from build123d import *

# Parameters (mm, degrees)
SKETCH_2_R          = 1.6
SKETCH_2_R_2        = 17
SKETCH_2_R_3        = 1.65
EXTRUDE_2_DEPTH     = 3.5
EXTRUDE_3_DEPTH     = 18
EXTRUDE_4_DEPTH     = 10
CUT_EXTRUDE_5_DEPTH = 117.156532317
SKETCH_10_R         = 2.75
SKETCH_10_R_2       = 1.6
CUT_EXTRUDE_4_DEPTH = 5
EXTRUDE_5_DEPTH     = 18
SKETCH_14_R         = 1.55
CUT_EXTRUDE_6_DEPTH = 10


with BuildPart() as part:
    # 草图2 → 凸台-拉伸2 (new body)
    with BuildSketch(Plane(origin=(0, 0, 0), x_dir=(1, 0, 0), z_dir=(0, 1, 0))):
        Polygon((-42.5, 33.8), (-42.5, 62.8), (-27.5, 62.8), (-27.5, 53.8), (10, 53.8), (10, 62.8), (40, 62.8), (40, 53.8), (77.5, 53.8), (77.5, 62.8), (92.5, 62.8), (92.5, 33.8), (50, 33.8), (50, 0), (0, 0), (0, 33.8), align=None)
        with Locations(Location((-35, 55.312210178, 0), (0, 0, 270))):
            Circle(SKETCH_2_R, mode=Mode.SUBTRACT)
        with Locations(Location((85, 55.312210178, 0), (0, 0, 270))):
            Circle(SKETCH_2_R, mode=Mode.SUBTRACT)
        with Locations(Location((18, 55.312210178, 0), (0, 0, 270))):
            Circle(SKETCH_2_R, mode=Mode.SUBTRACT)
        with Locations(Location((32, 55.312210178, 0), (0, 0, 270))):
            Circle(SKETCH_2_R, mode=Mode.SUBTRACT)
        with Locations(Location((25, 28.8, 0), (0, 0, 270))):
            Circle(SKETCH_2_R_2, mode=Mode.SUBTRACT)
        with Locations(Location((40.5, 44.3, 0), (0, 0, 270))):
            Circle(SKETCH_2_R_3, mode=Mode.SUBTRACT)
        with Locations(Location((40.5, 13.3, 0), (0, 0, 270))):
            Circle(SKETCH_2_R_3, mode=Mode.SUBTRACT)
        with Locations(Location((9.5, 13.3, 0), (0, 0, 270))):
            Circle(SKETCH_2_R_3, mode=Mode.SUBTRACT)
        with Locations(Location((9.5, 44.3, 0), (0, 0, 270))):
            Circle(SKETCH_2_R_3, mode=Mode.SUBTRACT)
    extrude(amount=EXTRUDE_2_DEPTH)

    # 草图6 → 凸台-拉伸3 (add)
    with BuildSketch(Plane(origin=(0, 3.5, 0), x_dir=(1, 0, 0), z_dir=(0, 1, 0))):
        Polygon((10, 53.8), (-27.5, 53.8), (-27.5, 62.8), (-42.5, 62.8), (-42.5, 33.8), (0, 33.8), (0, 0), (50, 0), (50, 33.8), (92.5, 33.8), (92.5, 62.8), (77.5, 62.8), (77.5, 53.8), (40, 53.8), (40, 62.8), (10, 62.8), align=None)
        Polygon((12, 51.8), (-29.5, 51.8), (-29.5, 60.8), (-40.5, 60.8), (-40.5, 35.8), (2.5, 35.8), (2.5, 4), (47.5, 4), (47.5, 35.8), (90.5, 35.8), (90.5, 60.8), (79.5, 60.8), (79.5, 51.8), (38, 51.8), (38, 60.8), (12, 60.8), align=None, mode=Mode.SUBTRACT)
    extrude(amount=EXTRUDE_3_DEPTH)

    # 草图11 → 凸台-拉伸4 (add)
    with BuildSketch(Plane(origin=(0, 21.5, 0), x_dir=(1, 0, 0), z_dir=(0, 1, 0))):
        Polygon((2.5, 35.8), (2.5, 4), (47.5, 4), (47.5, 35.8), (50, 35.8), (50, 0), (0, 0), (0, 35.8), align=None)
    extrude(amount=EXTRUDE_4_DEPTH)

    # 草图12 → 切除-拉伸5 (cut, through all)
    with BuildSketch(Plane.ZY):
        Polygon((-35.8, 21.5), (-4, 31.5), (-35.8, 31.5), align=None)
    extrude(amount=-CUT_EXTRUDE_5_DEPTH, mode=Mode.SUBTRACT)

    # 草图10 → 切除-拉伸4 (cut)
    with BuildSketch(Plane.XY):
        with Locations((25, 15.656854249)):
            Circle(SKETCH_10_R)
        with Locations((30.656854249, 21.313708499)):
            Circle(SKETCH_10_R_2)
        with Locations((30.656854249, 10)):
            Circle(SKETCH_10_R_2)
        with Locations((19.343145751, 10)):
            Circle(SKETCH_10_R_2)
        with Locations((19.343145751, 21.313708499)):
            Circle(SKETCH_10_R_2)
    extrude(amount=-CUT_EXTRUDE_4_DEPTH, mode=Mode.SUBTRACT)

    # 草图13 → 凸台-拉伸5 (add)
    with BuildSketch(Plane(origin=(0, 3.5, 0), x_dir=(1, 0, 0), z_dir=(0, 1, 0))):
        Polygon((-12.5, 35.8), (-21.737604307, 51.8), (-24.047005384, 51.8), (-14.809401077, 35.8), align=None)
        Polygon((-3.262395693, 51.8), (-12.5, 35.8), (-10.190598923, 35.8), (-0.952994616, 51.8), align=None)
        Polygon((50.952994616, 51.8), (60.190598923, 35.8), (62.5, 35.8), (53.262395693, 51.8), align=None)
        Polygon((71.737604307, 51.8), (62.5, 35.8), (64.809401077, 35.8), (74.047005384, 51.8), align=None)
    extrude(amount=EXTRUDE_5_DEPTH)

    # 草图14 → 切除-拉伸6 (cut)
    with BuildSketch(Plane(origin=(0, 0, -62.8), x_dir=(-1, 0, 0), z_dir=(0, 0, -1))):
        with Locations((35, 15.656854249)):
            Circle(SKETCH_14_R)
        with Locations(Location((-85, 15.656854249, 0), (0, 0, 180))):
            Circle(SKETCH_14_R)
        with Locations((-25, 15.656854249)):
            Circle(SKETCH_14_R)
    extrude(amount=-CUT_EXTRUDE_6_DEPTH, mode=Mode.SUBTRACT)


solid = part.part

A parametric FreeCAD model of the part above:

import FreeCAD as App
import Part
import Sketcher
Q = App.Units.Quantity


def add_polygon(sketch, points):
    """Adds a closed chain of lines whose ends are joined by coincident constraints."""
    first, n = sketch.GeometryCount, len(points)
    for a, b in zip(points, points[1:] + points[:1]):
        sketch.addGeometry(Part.LineSegment(App.Vector(*a, 0), App.Vector(*b, 0)), False)
    for i in range(n):
        sketch.addConstraint(Sketcher.Constraint("Coincident", first + i, 2, first + (i + 1) % n, 1))

doc = App.newDocument("Part")
body = doc.addObject("PartDesign::Body", "Body")

# Sketch on XZ plane
sketch1 = doc.addObject("Sketcher::SketchObject", "Sketch")
body.addObject(sketch1)
sketch1.AttachmentSupport = (doc.XZ_Plane, [""])
sketch1.MapMode = "FlatFace"
add_polygon(sketch1, [(-42.5, -62.8), (-42.5, -33.8), (0, -33.8), (0, 0), (50, 0), (50, -33.8), (92.5, -33.8), (92.5, -62.8), (77.5, -62.8), (77.5, -53.8), (40, -53.8), (40, -62.8), (10, -62.8), (10, -53.8), (-27.5, -53.8), (-27.5, -62.8)])  # lines 0-15
sketch1.addGeometry(Part.Circle(App.Vector(40.5, -13.3, 0), App.Vector(0, 0, 1), 1.6), False)  # 16
sketch1.addGeometry(Part.Circle(App.Vector(9.5, -13.3, 0), App.Vector(0, 0, 1), 1.6), False)  # 17
sketch1.addGeometry(Part.Circle(App.Vector(25, -28.8, 0), App.Vector(0, 0, 1), 17), False)  # 18
sketch1.addGeometry(Part.Circle(App.Vector(40.5, -44.3, 0), App.Vector(0, 0, 1), 1.6), False)  # 19
sketch1.addGeometry(Part.Circle(App.Vector(85, -55.3, 0), App.Vector(0, 0, 1), 1.6), False)  # 20
sketch1.addGeometry(Part.Circle(App.Vector(32, -55.3, 0), App.Vector(0, 0, 1), 1.6), False)  # 21
sketch1.addGeometry(Part.Circle(App.Vector(9.5, -44.3, 0), App.Vector(0, 0, 1), 1.6), False)  # 22
sketch1.addGeometry(Part.Circle(App.Vector(18, -55.3, 0), App.Vector(0, 0, 1), 1.6), False)  # 23
sketch1.addGeometry(Part.Circle(App.Vector(-35, -55.3, 0), App.Vector(0, 0, 1), 1.6), False)  # 24
sketch1.addConstraint(Sketcher.Constraint("Vertical", 0))
sketch1.addConstraint(Sketcher.Constraint("Horizontal", 1))
sketch1.addConstraint(Sketcher.Constraint("Vertical", 2))
sketch1.addConstraint(Sketcher.Constraint("Horizontal", 3))
sketch1.addConstraint(Sketcher.Constraint("Vertical", 4))
sketch1.addConstraint(Sketcher.Constraint("Horizontal", 5))
sketch1.addConstraint(Sketcher.Constraint("Vertical", 6))
sketch1.addConstraint(Sketcher.Constraint("Horizontal", 7))
sketch1.addConstraint(Sketcher.Constraint("Vertical", 8))
sketch1.addConstraint(Sketcher.Constraint("Horizontal", 9))
sketch1.addConstraint(Sketcher.Constraint("Vertical", 10))
sketch1.addConstraint(Sketcher.Constraint("Horizontal", 11))
sketch1.addConstraint(Sketcher.Constraint("Vertical", 12))
sketch1.addConstraint(Sketcher.Constraint("Horizontal", 13))
sketch1.addConstraint(Sketcher.Constraint("Vertical", 14))
sketch1.addConstraint(Sketcher.Constraint("Horizontal", 15))
sketch1.addConstraint(Sketcher.Constraint("Coincident", 2, 2, -1, 1))
sketch1.addConstraint(Sketcher.Constraint("Equal", 16, 17))
sketch1.addConstraint(Sketcher.Constraint("Equal", 17, 19))
sketch1.addConstraint(Sketcher.Constraint("Equal", 20, 21))
sketch1.addConstraint(Sketcher.Constraint("Equal", 19, 22))
sketch1.addConstraint(Sketcher.Constraint("Equal", 21, 23))
sketch1.addConstraint(Sketcher.Constraint("Equal", 23, 24))
sketch1.addConstraint(Sketcher.Constraint("Horizontal", 16, 3, 17, 3))
sketch1.addConstraint(Sketcher.Constraint("Horizontal", 20, 3, 21, 3))
sketch1.addConstraint(Sketcher.Constraint("Horizontal", 19, 3, 22, 3))
sketch1.addConstraint(Sketcher.Constraint("Horizontal", 21, 3, 23, 3))
sketch1.addConstraint(Sketcher.Constraint("Horizontal", 23, 3, 24, 3))
sketch1.addConstraint(Sketcher.Constraint("Horizontal", 1, 2, 4, 2))
sketch1.addConstraint(Sketcher.Constraint("Horizontal", 7, 2, 10, 2))
sketch1.addConstraint(Sketcher.Constraint("Horizontal", 9, 2, 12, 2))
sketch1.addConstraint(Sketcher.Constraint("Horizontal", 11, 2, 14, 2))
sketch1.addConstraint(Sketcher.Constraint("Vertical", 16, 3, 19, 3))
sketch1.addConstraint(Sketcher.Constraint("Vertical", 17, 3, 22, 3))
sketch1.addConstraint(Sketcher.Constraint("Equal", 1, 5))
sketch1.addConstraint(Sketcher.Constraint("Equal", 9, 13))
sketch1.addConstraint(Sketcher.Constraint("Equal", 7, 15))
sketch1.addConstraint(Sketcher.Constraint("Diameter", 18, 34.0))
sketch1.addConstraint(Sketcher.Constraint("Diameter", 16, 3.3))
sketch1.addConstraint(Sketcher.Constraint("Diameter", 20, 3.2))
sketch1.addConstraint(Sketcher.Constraint("DistanceX", 3, 1, 3, 2, 50.0))
sketch1.addConstraint(Sketcher.Constraint("DistanceX", 7, 2, 7, 1, 15.0))
sketch1.addConstraint(Sketcher.Constraint("DistanceX", 11, 2, 11, 1, 30.0))
sketch1.addConstraint(Sketcher.Constraint("DistanceY", 0, 1, 0, 2, 29.0))
sketch1.addConstraint(Sketcher.Constraint("DistanceY", 8, 1, 8, 2, 9.0))
sketch1.addConstraint(Sketcher.Constraint("DistanceX", 1, 1, 1, 2, 42.5))
sketch1.addConstraint(Sketcher.Constraint("DistanceY", 2, 1, 2, 2, 33.8))
sketch1.addConstraint(Sketcher.Constraint("DistanceX", -1, 1, 18, 3, 25.0))
sketch1.addConstraint(Sketcher.Constraint("DistanceX", -1, 1, 20, 3, 85.0))
sketch1.addConstraint(Sketcher.Constraint("DistanceX", -1, 1, 21, 3, 32.0))
sketch1.addConstraint(Sketcher.Constraint("DistanceX", -1, 1, 23, 3, 18.0))
sketch1.addConstraint(Sketcher.Constraint("DistanceX", 24, 3, -1, 1, 35.0))
sketch1.addConstraint(Sketcher.Constraint("DistanceX", 17, 3, 16, 3, 31.0))
sketch1.addConstraint(Sketcher.Constraint("DistanceY", 19, 3, 16, 3, 31.0))
sketch1.addConstraint(Sketcher.Constraint("DistanceX", 0, 2, 22, 3, 52.0))
sketch1.addConstraint(Sketcher.Constraint("DistanceY", 0, 2, 18, 3, 5.0))
sketch1.addConstraint(Sketcher.Constraint("DistanceY", 16, 3, -1, 1, 13.3))
sketch1.addConstraint(Sketcher.Constraint("DistanceY", 20, 3, -1, 1, 55.31221))
pad1 = doc.addObject("PartDesign::Pad", "Pad")
body.addObject(pad1)
pad1.Profile = sketch1
pad1.Length = 3.5
pad1.Reversed = True

# Sketch on XZ plane
sketch2 = doc.addObject("Sketcher::SketchObject", "Sketch001")
body.addObject(sketch2)
sketch2.AttachmentSupport = (doc.XZ_Plane, [""])
sketch2.MapMode = "FlatFace"
sketch2.AttachmentOffset = App.Placement(App.Vector(0, 0, -3.5), App.Rotation())
add_polygon(sketch2, [(10, -54), (-28, -54), (-28, -63), (-42, -63), (-42, -34), (0, -34), (0, 0), (50, 0), (50, -34), (92, -34), (92, -63), (78, -63), (78, -54), (40, -54), (40, -63), (10, -63)])  # lines 0-15
add_polygon(sketch2, [(-30, -52), (12, -52), (12, -61), (38, -61), (38, -52), (80, -52), (80, -61), (90, -61), (90, -36), (48, -36), (48, -4), (2, -4), (2, -36), (-40, -36), (-40, -61), (-30, -61)])  # lines 16-31
sketch2.addConstraint(Sketcher.Constraint("Horizontal", 0))
sketch2.addConstraint(Sketcher.Constraint("Vertical", 1))
sketch2.addConstraint(Sketcher.Constraint("Horizontal", 2))
sketch2.addConstraint(Sketcher.Constraint("Vertical", 3))
sketch2.addConstraint(Sketcher.Constraint("Horizontal", 4))
sketch2.addConstraint(Sketcher.Constraint("Vertical", 5))
sketch2.addConstraint(Sketcher.Constraint("Horizontal", 6))
sketch2.addConstraint(Sketcher.Constraint("Vertical", 7))
sketch2.addConstraint(Sketcher.Constraint("Horizontal", 8))
sketch2.addConstraint(Sketcher.Constraint("Vertical", 9))
sketch2.addConstraint(Sketcher.Constraint("Horizontal", 10))
sketch2.addConstraint(Sketcher.Constraint("Vertical", 11))
sketch2.addConstraint(Sketcher.Constraint("Horizontal", 12))
sketch2.addConstraint(Sketcher.Constraint("Vertical", 13))
sketch2.addConstraint(Sketcher.Constraint("Horizontal", 14))
sketch2.addConstraint(Sketcher.Constraint("Vertical", 15))
sketch2.addConstraint(Sketcher.Constraint("Horizontal", 16))
sketch2.addConstraint(Sketcher.Constraint("Vertical", 17))
sketch2.addConstraint(Sketcher.Constraint("Horizontal", 18))
sketch2.addConstraint(Sketcher.Constraint("Vertical", 19))
sketch2.addConstraint(Sketcher.Constraint("Horizontal", 20))
sketch2.addConstraint(Sketcher.Constraint("Vertical", 21))
sketch2.addConstraint(Sketcher.Constraint("Horizontal", 22))
sketch2.addConstraint(Sketcher.Constraint("Vertical", 23))
sketch2.addConstraint(Sketcher.Constraint("Horizontal", 24))
sketch2.addConstraint(Sketcher.Constraint("Vertical", 25))
sketch2.addConstraint(Sketcher.Constraint("Horizontal", 26))
sketch2.addConstraint(Sketcher.Constraint("Vertical", 27))
sketch2.addConstraint(Sketcher.Constraint("Horizontal", 28))
sketch2.addConstraint(Sketcher.Constraint("Vertical", 29))
sketch2.addConstraint(Sketcher.Constraint("Horizontal", 30))
sketch2.addConstraint(Sketcher.Constraint("Vertical", 31))
sketch2.addConstraint(Sketcher.Constraint("Coincident", 5, 2, -1, 1))
sketch2.addConstraint(Sketcher.Constraint("Horizontal", 4, 2, 7, 2))
sketch2.addConstraint(Sketcher.Constraint("Horizontal", 2, 2, 9, 2))
sketch2.addConstraint(Sketcher.Constraint("Horizontal", 0, 2, 11, 2))
sketch2.addConstraint(Sketcher.Constraint("Horizontal", 10, 2, 13, 2))
sketch2.addConstraint(Sketcher.Constraint("Horizontal", 16, 2, 19, 2))
sketch2.addConstraint(Sketcher.Constraint("Horizontal", 18, 2, 21, 2))
sketch2.addConstraint(Sketcher.Constraint("Horizontal", 24, 2, 27, 2))
sketch2.addConstraint(Sketcher.Constraint("Horizontal", 22, 2, 29, 2))
sketch2.addConstraint(Sketcher.Constraint("Equal", 4, 8))
sketch2.addConstraint(Sketcher.Constraint("Equal", 2, 10))
sketch2.addConstraint(Sketcher.Constraint("Equal", 0, 12))
sketch2.addConstraint(Sketcher.Constraint("Equal", 16, 20))
sketch2.addConstraint(Sketcher.Constraint("Equal", 24, 28))
sketch2.addConstraint(Sketcher.Constraint("Equal", 22, 30))
sketch2.addConstraint(Sketcher.Constraint("Equal", 15, 17))
sketch2.addConstraint(Sketcher.Constraint("DistanceX", 2, 2, 2, 1, 15.0))
sketch2.addConstraint(Sketcher.Constraint("DistanceX", 6, 1, 6, 2, 50.0))
sketch2.addConstraint(Sketcher.Constraint("DistanceX", 14, 2, 14, 1, 30.0))
sketch2.addConstraint(Sketcher.Constraint("DistanceX", 18, 1, 18, 2, 26.0))
sketch2.addConstraint(Sketcher.Constraint("DistanceX", 22, 1, 22, 2, 11.0))
sketch2.addConstraint(Sketcher.Constraint("DistanceX", 24, 2, 24, 1, 43.0))
sketch2.addConstraint(Sketcher.Constraint("DistanceX", 26, 2, 26, 1, 45.0))
sketch2.addConstraint(Sketcher.Constraint("DistanceY", 1, 2, 1, 1, 9.0))
sketch2.addConstraint(Sketcher.Constraint("DistanceY", 3, 1, 3, 2, 29.0))
sketch2.addConstraint(Sketcher.Constraint("DistanceY", 23, 1, 23, 2, 25.0))
sketch2.addConstraint(Sketcher.Constraint("DistanceX", 0, 2, 0, 1, 37.5))
sketch2.addConstraint(Sketcher.Constraint("DistanceY", 5, 1, 5, 2, 33.8))
sketch2.addConstraint(Sketcher.Constraint("DistanceY", 25, 1, 25, 2, 31.8))
sketch2.addConstraint(Sketcher.Constraint("DistanceX", -1, 1, 16, 2, 12.0))
sketch2.addConstraint(Sketcher.Constraint("DistanceY", 25, 2, -1, 1, 4.0))
pad2 = doc.addObject("PartDesign::Pad", "Pad001")
body.addObject(pad2)
pad2.Profile = sketch2
pad2.Length = 18
pad2.Reversed = True

# Sketch on XZ plane
sketch3 = doc.addObject("Sketcher::SketchObject", "Sketch002")
body.addObject(sketch3)
sketch3.AttachmentSupport = (doc.XZ_Plane, [""])
sketch3.MapMode = "FlatFace"
sketch3.AttachmentOffset = App.Placement(App.Vector(0, 0, -21.5), App.Rotation())
add_polygon(sketch3, [(2.5, -4), (2.5, -35.8), (0, -35.8), (0, 0), (50, 0), (50, -35.8), (47.5, -35.8), (47.5, -4)])  # lines 0-7
sketch3.addConstraint(Sketcher.Constraint("Vertical", 0))
sketch3.addConstraint(Sketcher.Constraint("Horizontal", 1))
sketch3.addConstraint(Sketcher.Constraint("Vertical", 2))
sketch3.addConstraint(Sketcher.Constraint("Horizontal", 3))
sketch3.addConstraint(Sketcher.Constraint("Vertical", 4))
sketch3.addConstraint(Sketcher.Constraint("Horizontal", 5))
sketch3.addConstraint(Sketcher.Constraint("Vertical", 6))
sketch3.addConstraint(Sketcher.Constraint("Horizontal", 7))
sketch3.addConstraint(Sketcher.Constraint("Coincident", 2, 2, -1, 1))
sketch3.addConstraint(Sketcher.Constraint("Horizontal", 1, 2, 4, 2))
sketch3.addConstraint(Sketcher.Constraint("Equal", 1, 5))
sketch3.addConstraint(Sketcher.Constraint("DistanceX", 3, 1, 3, 2, 50.0))
sketch3.addConstraint(Sketcher.Constraint("DistanceX", 7, 2, 7, 1, 45.0))
sketch3.addConstraint(Sketcher.Constraint("DistanceY", 0, 2, 0, 1, 31.8))
sketch3.addConstraint(Sketcher.Constraint("DistanceY", 2, 1, 2, 2, 35.8))
pad3 = doc.addObject("PartDesign::Pad", "Pad002")
body.addObject(pad3)
pad3.Profile = sketch3
pad3.Length = 10
pad3.Reversed = True

# Sketch on YZ plane
sketch4 = doc.addObject("Sketcher::SketchObject", "Sketch003")
body.addObject(sketch4)
sketch4.AttachmentSupport = (doc.YZ_Plane, [""])
sketch4.MapMode = "FlatFace"
add_polygon(sketch4, [(22, -36), (32, -4), (32, -36)])  # lines 0-2
sketch4.addConstraint(Sketcher.Constraint("Vertical", 1))
sketch4.addConstraint(Sketcher.Constraint("Horizontal", 2))
sketch4.addConstraint(Sketcher.Constraint("DistanceX", 2, 2, 2, 1, 10.0))
sketch4.addConstraint(Sketcher.Constraint("DistanceY", 1, 2, 1, 1, 31.8))
sketch4.addConstraint(Sketcher.Constraint("DistanceY", 0, 2, -1, 1, 4.0))
sketch4.addConstraint(Sketcher.Constraint("DistanceX", -1, 1, 0, 2, 31.5))
pocket1 = doc.addObject("PartDesign::Pocket", "Pocket")
body.addObject(pocket1)
pocket1.Profile = sketch4
pocket1.Type = "ThroughAll"
pocket1.Reversed = True

# Sketch on XY plane
sketch5 = doc.addObject("Sketcher::SketchObject", "Sketch004")
body.addObject(sketch5)
sketch5.AttachmentSupport = (doc.XY_Plane, [""])
sketch5.MapMode = "FlatFace"
sketch5.addGeometry(Part.Circle(App.Vector(25, 15.7, 0), App.Vector(0, 0, 1), 2.8), False)
sketch5.addGeometry(Part.Circle(App.Vector(30.7, 21.3, 0), App.Vector(0, 0, 1), 1.6), False)
sketch5.addGeometry(Part.Circle(App.Vector(30.7, 10, 0), App.Vector(0, 0, 1), 1.6), False)
sketch5.addGeometry(Part.Circle(App.Vector(19.3, 10, 0), App.Vector(0, 0, 1), 1.6), False)
sketch5.addGeometry(Part.Circle(App.Vector(19.3, 21.3, 0), App.Vector(0, 0, 1), 1.6), False)
sketch5.addConstraint(Sketcher.Constraint("Equal", 1, 2))
sketch5.addConstraint(Sketcher.Constraint("Equal", 2, 3))
sketch5.addConstraint(Sketcher.Constraint("Equal", 3, 4))
sketch5.addConstraint(Sketcher.Constraint("Horizontal", 2, 3, 3, 3))
sketch5.addConstraint(Sketcher.Constraint("Horizontal", 1, 3, 4, 3))
sketch5.addConstraint(Sketcher.Constraint("Vertical", 1, 3, 2, 3))
sketch5.addConstraint(Sketcher.Constraint("Vertical", 3, 3, 4, 3))
sketch5.addConstraint(Sketcher.Constraint("Diameter", 0, 5.5))
sketch5.addConstraint(Sketcher.Constraint("Diameter", 1, 3.2))
sketch5.addConstraint(Sketcher.Constraint("DistanceX", -1, 1, 0, 3, 25.0))
sketch5.addConstraint(Sketcher.Constraint("DistanceY", -1, 1, 2, 3, 10.0))
sketch5.addConstraint(Sketcher.Constraint("DistanceY", -1, 1, 1, 3, 21.313708))
sketch5.addConstraint(Sketcher.Constraint("DistanceX", 3, 3, 2, 3, 11.313708))
sketch5.addConstraint(Sketcher.Constraint("DistanceY", -1, 1, 0, 3, 15.656854))
sketch5.addConstraint(Sketcher.Constraint("DistanceX", -1, 1, 1, 3, 30.656854))
pocket2 = doc.addObject("PartDesign::Pocket", "Pocket001")
body.addObject(pocket2)
pocket2.Profile = sketch5
pocket2.Length = 5

# Sketch on XZ plane
sketch6 = doc.addObject("Sketcher::SketchObject", "Sketch005")
body.addObject(sketch6)
sketch6.AttachmentSupport = (doc.XZ_Plane, [""])
sketch6.MapMode = "FlatFace"
sketch6.AttachmentOffset = App.Placement(App.Vector(0, 0, -3.5), App.Rotation())
add_polygon(sketch6, [(-12.5, -35.8), (-21.7, -51.8), (-24, -51.8), (-14.8, -35.8)])  # lines 0-3
add_polygon(sketch6, [(-3.3, -51.8), (-12.5, -35.8), (-10.2, -35.8), (-1, -51.8)])  # lines 4-7
add_polygon(sketch6, [(51, -51.8), (60.2, -35.8), (62.5, -35.8), (53.3, -51.8)])  # lines 8-11
add_polygon(sketch6, [(71.7, -51.8), (62.5, -35.8), (64.8, -35.8), (74, -51.8)])  # lines 12-15
sketch6.addConstraint(Sketcher.Constraint("Horizontal", 1))
sketch6.addConstraint(Sketcher.Constraint("Horizontal", 3))
sketch6.addConstraint(Sketcher.Constraint("Horizontal", 5))
sketch6.addConstraint(Sketcher.Constraint("Horizontal", 7))
sketch6.addConstraint(Sketcher.Constraint("Horizontal", 9))
sketch6.addConstraint(Sketcher.Constraint("Horizontal", 11))
sketch6.addConstraint(Sketcher.Constraint("Horizontal", 13))
sketch6.addConstraint(Sketcher.Constraint("Horizontal", 15))
sketch6.addConstraint(Sketcher.Constraint("Coincident", 4, 2, 3, 2))
sketch6.addConstraint(Sketcher.Constraint("Coincident", 12, 2, 9, 2))
sketch6.addConstraint(Sketcher.Constraint("Parallel", 0, 2))
sketch6.addConstraint(Sketcher.Constraint("Parallel", 4, 6))
sketch6.addConstraint(Sketcher.Constraint("Parallel", 2, 8))
sketch6.addConstraint(Sketcher.Constraint("Parallel", 8, 10))
sketch6.addConstraint(Sketcher.Constraint("Parallel", 6, 12))
sketch6.addConstraint(Sketcher.Constraint("Parallel", 12, 14))
sketch6.addConstraint(Sketcher.Constraint("Horizontal", 1, 2, 6, 2))
sketch6.addConstraint(Sketcher.Constraint("Horizontal", 5, 2, 8, 2))
sketch6.addConstraint(Sketcher.Constraint("Horizontal", 7, 2, 10, 2))
sketch6.addConstraint(Sketcher.Constraint("Horizontal", 11, 2, 14, 2))
sketch6.addConstraint(Sketcher.Constraint("Equal", 3, 5))
sketch6.addConstraint(Sketcher.Constraint("Equal", 7, 9))
sketch6.addConstraint(Sketcher.Constraint("Equal", 11, 13))
sketch6.addConstraint(Sketcher.Constraint("Equal", 2, 4))
sketch6.addConstraint(Sketcher.Constraint("Angle", 0, Q("-120 deg")))
sketch6.addConstraint(Sketcher.Constraint("DistanceY", 0, 2, 2, 2, 16.0))
sketch6.addConstraint(Sketcher.Constraint("DistanceX", 3, 2, 9, 2, 75.0))
sketch6.addConstraint(Sketcher.Constraint("DistanceY", 0, 2, -1, 1, 51.8))
sketch6.addConstraint(Sketcher.Constraint("DistanceX", 3, 2, -1, 1, 12.5))
sketch6.addConstraint(Sketcher.Constraint("DistanceX", 1, 2, 1, 1, 2.309401))
pad4 = doc.addObject("PartDesign::Pad", "Pad003")
body.addObject(pad4)
pad4.Profile = sketch6
pad4.Length = 18
pad4.Reversed = True

# Sketch on XY plane
sketch7 = doc.addObject("Sketcher::SketchObject", "Sketch006")
body.addObject(sketch7)
sketch7.AttachmentSupport = (doc.XY_Plane, [""])
sketch7.MapMode = "FlatFace"
sketch7.AttachmentOffset = App.Placement(App.Vector(0, 0, -62.8), App.Rotation())
sketch7.addGeometry(Part.Circle(App.Vector(-35, 15.7, 0), App.Vector(0, 0, 1), 1.6), False)
sketch7.addGeometry(Part.Circle(App.Vector(85, 15.7, 0), App.Vector(0, 0, 1), 1.6), False)
sketch7.addGeometry(Part.Circle(App.Vector(25, 15.7, 0), App.Vector(0, 0, 1), 1.6), False)
sketch7.addConstraint(Sketcher.Constraint("Equal", 0, 1))
sketch7.addConstraint(Sketcher.Constraint("Equal", 1, 2))
sketch7.addConstraint(Sketcher.Constraint("Horizontal", 0, 3, 1, 3))
sketch7.addConstraint(Sketcher.Constraint("Horizontal", 1, 3, 2, 3))
sketch7.addConstraint(Sketcher.Constraint("Diameter", 0, 3.1))
sketch7.addConstraint(Sketcher.Constraint("DistanceX", 0, 3, -1, 1, 35.0))
sketch7.addConstraint(Sketcher.Constraint("DistanceX", -1, 1, 1, 3, 85.0))
sketch7.addConstraint(Sketcher.Constraint("DistanceX", -1, 1, 2, 3, 25.0))
sketch7.addConstraint(Sketcher.Constraint("DistanceY", -1, 1, 0, 3, 15.656854))
pocket3 = doc.addObject("PartDesign::Pocket", "Pocket002")
body.addObject(pocket3)
pocket3.Profile = sketch7
pocket3.Length = 10
pocket3.Reversed = True

doc.recompute()
